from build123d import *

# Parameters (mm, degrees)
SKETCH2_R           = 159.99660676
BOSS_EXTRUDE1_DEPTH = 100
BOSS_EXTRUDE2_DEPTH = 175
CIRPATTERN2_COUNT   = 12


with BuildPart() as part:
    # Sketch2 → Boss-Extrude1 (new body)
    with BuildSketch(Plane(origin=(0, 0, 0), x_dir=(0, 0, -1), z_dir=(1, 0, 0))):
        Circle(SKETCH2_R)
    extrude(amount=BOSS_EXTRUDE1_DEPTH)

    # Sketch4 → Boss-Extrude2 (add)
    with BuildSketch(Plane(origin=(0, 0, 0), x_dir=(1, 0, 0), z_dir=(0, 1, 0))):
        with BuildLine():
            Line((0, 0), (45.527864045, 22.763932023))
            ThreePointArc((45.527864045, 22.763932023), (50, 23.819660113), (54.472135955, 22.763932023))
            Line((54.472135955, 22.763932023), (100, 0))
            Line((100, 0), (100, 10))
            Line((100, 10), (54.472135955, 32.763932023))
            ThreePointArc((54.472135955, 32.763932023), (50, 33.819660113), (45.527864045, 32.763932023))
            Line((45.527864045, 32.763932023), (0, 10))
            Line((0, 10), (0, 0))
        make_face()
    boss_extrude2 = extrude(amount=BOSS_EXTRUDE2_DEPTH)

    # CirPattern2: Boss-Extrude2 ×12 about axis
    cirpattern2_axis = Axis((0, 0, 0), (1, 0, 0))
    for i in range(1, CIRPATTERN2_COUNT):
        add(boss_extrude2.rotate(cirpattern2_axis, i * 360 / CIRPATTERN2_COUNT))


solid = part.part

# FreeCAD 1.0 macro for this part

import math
import FreeCAD as App
import Part
import Sketcher

doc = App.newDocument("Part")
body = doc.addObject("PartDesign::Body", "Body")

# Sketch on YZ plane
sketch1 = body.newObject("Sketcher::SketchObject", "Sketch")
sketch1.AttachmentSupport = (doc.getObject("YZ_Plane"), [""])
sketch1.MapMode = "FlatFace"
sketch1.addGeometry(Part.Circle(App.Vector(0, 0, 0), App.Vector(0, 0, 1), 160), False)
sketch1.addConstraint(Sketcher.Constraint("Coincident", 0, 3, -1, 1))
sketch1.addConstraint(Sketcher.Constraint("Diameter", 0, 319.993214))
pad1 = body.newObject("PartDesign::Pad", "Pad")
pad1.Profile = sketch1
pad1.Length = 100

# Sketch on XZ plane
sketch2 = body.newObject("Sketcher::SketchObject", "Sketch001")
sketch2.AttachmentSupport = (doc.getObject("XZ_Plane"), [""])
sketch2.MapMode = "FlatFace"
sketch2.addGeometry(Part.LineSegment(App.Vector(0, 0, 0), App.Vector(46, -23, 0)), False)
sketch2.addGeometry(Part.ArcOfCircle(Part.Circle(App.Vector(50, -14, 0), App.Vector(0, 0, 1), 10), math.radians(-117), math.radians(-63)), False)
sketch2.addGeometry(Part.LineSegment(App.Vector(54, -23, 0), App.Vector(100, 0, 0)), False)
sketch2.addGeometry(Part.LineSegment(App.Vector(100, 0, 0), App.Vector(100, -10, 0)), False)
sketch2.addGeometry(Part.LineSegment(App.Vector(100, -10, 0), App.Vector(54, -33, 0)), False)
sketch2.addGeometry(Part.ArcOfCircle(Part.Circle(App.Vector(50, -24, 0), App.Vector(0, 0, 1), 10), math.radians(-117), math.radians(-63)), False)
sketch2.addGeometry(Part.LineSegment(App.Vector(46, -33, 0), App.Vector(0, -10, 0)), False)
sketch2.addGeometry(Part.LineSegment(App.Vector(0, -10, 0), App.Vector(0, 0, 0)), False)
sketch2.addConstraint(Sketcher.Constraint("Tangent", 0, 2, 1, 1))
sketch2.addConstraint(Sketcher.Constraint("Tangent", 1, 2, 2, 1))
sketch2.addConstraint(Sketcher.Constraint("Coincident", 2, 2, 3, 1))
sketch2.addConstraint(Sketcher.Constraint("Coincident", 3, 2, 4, 1))
sketch2.addConstraint(Sketcher.Constraint("Tangent", 4, 2, 5, 2))
sketch2.addConstraint(Sketcher.Constraint("Tangent", 5, 1, 6, 1))
sketch2.addConstraint(Sketcher.Constraint("Coincident", 6, 2, 7, 1))
sketch2.addConstraint(Sketcher.Constraint("Coincident", 7, 2, 0, 1))
sketch2.addConstraint(Sketcher.Constraint("Vertical", 3))
sketch2.addConstraint(Sketcher.Constraint("Vertical", 7))
sketch2.addConstraint(Sketcher.Constraint("Coincident", 7, 2, -1, 1))
sketch2.addConstraint(Sketcher.Constraint("Equal", 1, 5))
sketch2.addConstraint(Sketcher.Constraint("PointOnObject", 2, 2, -1))
sketch2.addConstraint(Sketcher.Constraint("Parallel", 2, 4))
sketch2.addConstraint(Sketcher.Constraint("Parallel", 0, 6))
sketch2.addConstraint(Sketcher.Constraint("Horizontal", 0, 2, 1, 2))
sketch2.addConstraint(Sketcher.Constraint("Horizontal", 3, 2, 6, 2))
sketch2.addConstraint(Sketcher.Constraint("Radius", 1, 10.0))
sketch2.addConstraint(Sketcher.Constraint("DistanceY", 3, 2, 3, 1, 10.0))
sketch2.addConstraint(Sketcher.Constraint("DistanceX", -1, 1, 1, 3, 50.0))
sketch2.addConstraint(Sketcher.Constraint("Distance", 0, 50.901699))
pad2 = body.newObject("PartDesign::Pad", "Pad001")
pad2.Profile = sketch2
pad2.Length = 175
pad2.Reversed = True
doc.recompute()

polarpattern = body.newObject("PartDesign::PolarPattern", "PolarPattern")
polarpattern.Originals = [pad2]
polarpattern.Axis = (doc.getObject("X_Axis"), [""])
polarpattern.Angle = 360
polarpattern.Occurrences = 12
body.Tip = polarpattern

doc.recompute()
